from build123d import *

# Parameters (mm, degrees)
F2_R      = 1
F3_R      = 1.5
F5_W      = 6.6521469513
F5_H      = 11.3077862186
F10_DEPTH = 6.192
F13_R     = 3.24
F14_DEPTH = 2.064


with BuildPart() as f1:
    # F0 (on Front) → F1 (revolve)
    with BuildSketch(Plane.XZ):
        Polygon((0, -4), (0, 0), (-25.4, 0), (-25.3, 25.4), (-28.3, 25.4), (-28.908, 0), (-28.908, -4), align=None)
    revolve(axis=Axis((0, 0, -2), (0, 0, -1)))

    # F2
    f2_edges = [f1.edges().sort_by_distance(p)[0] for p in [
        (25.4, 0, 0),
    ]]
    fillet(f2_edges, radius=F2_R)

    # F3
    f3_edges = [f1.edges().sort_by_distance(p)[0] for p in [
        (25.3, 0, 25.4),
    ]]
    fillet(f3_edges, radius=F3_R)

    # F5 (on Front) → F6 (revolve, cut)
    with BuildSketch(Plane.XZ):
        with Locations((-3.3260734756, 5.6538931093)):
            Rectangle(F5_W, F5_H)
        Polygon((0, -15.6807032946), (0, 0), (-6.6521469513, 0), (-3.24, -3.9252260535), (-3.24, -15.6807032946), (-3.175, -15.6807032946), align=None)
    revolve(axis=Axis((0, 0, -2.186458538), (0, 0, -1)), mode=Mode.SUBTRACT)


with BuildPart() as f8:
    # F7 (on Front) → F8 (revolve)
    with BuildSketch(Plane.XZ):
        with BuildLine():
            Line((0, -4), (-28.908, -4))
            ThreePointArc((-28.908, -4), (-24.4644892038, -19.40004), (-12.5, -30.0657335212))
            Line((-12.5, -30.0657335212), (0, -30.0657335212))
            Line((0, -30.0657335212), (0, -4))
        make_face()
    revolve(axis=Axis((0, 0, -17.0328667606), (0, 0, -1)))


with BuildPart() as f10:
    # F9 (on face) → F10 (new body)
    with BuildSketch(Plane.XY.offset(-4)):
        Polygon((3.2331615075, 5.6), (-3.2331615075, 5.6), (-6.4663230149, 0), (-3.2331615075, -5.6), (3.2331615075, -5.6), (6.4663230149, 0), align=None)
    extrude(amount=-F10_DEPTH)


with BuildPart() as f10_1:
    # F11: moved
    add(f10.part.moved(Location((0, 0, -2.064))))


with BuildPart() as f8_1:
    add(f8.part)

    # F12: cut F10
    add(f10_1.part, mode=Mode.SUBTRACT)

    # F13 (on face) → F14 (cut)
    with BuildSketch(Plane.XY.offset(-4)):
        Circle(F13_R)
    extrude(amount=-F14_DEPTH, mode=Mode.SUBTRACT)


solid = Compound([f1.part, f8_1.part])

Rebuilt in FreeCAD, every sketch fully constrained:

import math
import FreeCAD as App
import Part
import Sketcher

V = App.Vector
Q = App.Units.Quantity


def edges_at(feature, points):
    """Names of the edges that pass closest to the given points."""
    edges = feature.Shape.Edges
    near = lambda p: min(range(len(edges)), key=lambda i: edges[i].distToShape(Part.Vertex(*p))[0])
    return sorted({f"Edge{near(p) + 1}" for p in points})

doc = App.newDocument("Part")
body = doc.addObject("PartDesign::Body", "Body")

# Sketch on XZ plane
sketch1 = body.newObject("Sketcher::SketchObject", "Sketch")
sketch1.AttachmentSupport = (doc.getObject("XZ_Plane"), [""])
sketch1.MapMode = "FlatFace"
sketch1.addGeometry(Part.LineSegment(V(0, -4, 0), V(0, 0, 0)), False)
sketch1.addGeometry(Part.LineSegment(V(0, 0, 0), V(-25.4, 0, 0)), False)
sketch1.addGeometry(Part.LineSegment(V(-25.4, 0, 0), V(-25.3, 25.4, 0)), False)
sketch1.addGeometry(Part.LineSegment(V(-25.3, 25.4, 0), V(-28.3, 25.4, 0)), False)
sketch1.addGeometry(Part.LineSegment(V(-28.3, 25.4, 0), V(-28.908, 0, 0)), False)
sketch1.addGeometry(Part.LineSegment(V(-28.908, 0, 0), V(-28.908, -4, 0)), False)
sketch1.addGeometry(Part.LineSegment(V(-28.908, -4, 0), V(0, -4, 0)), False)
sketch1.addConstraint(Sketcher.Constraint("Coincident", 0, 2, 1, 1))
sketch1.addConstraint(Sketcher.Constraint("Coincident", 1, 2, 2, 1))
sketch1.addConstraint(Sketcher.Constraint("Coincident", 2, 2, 3, 1))
sketch1.addConstraint(Sketcher.Constraint("Coincident", 3, 2, 4, 1))
sketch1.addConstraint(Sketcher.Constraint("Coincident", 4, 2, 5, 1))
sketch1.addConstraint(Sketcher.Constraint("Coincident", 5, 2, 6, 1))
sketch1.addConstraint(Sketcher.Constraint("Coincident", 6, 2, 0, 1))
sketch1.addConstraint(Sketcher.Constraint("Vertical", 0))
sketch1.addConstraint(Sketcher.Constraint("Horizontal", 1))
sketch1.addConstraint(Sketcher.Constraint("Horizontal", 3))
sketch1.addConstraint(Sketcher.Constraint("Vertical", 5))
sketch1.addConstraint(Sketcher.Constraint("Horizontal", 6))
sketch1.addConstraint(Sketcher.Constraint("Coincident", 0, 2, -1, 1))
sketch1.addConstraint(Sketcher.Constraint("PointOnObject", 4, 2, -1))
sketch1.addConstraint(Sketcher.Constraint("DistanceX", 3, 2, 3, 1, 3.0))
sketch1.addConstraint(Sketcher.Constraint("DistanceY", 0, 1, 0, 2, 4.0))
sketch1.addConstraint(Sketcher.Constraint("DistanceX", 1, 2, 1, 1, 25.4))
sketch1.addConstraint(Sketcher.Constraint("DistanceX", 2, 2, -1, 1, 25.3))
sketch1.addConstraint(Sketcher.Constraint("DistanceY", -1, 1, 2, 2, 25.4))
sketch1.addConstraint(Sketcher.Constraint("DistanceX", 6, 1, 6, 2, 28.908))
revolution = body.newObject("PartDesign::Revolution", "Revolution")
revolution.Profile = sketch1
revolution.ReferenceAxis = (sketch1, ["V_Axis"])
revolution.Angle = 360
doc.recompute()

fillet = body.newObject("PartDesign::Fillet", "Fillet")
fillet.Base = (revolution, edges_at(revolution, [(25.4, 0, 0)]))
fillet.Radius = 1
doc.recompute()

fillet2 = body.newObject("PartDesign::Fillet", "Fillet001")
fillet2.Base = (fillet, edges_at(fillet, [(25.3, 0, 25.4)]))
fillet2.Radius = 1.5

# Sketch on XZ plane
sketch2 = body.newObject("Sketcher::SketchObject", "Sketch001")
sketch2.AttachmentSupport = (doc.getObject("XZ_Plane"), [""])
sketch2.MapMode = "FlatFace"
sketch2.addGeometry(Part.LineSegment(V(-6.652147, 11.307786, 0), V(-6.652147, 0, 0)), False)
sketch2.addGeometry(Part.LineSegment(V(-6.652147, 0, 0), V(-3.24, -3.925226, 0)), False)
sketch2.addGeometry(Part.LineSegment(V(-3.24, -3.925226, 0), V(-3.24, -15.680703, 0)), False)
sketch2.addGeometry(Part.LineSegment(V(-3.24, -15.680703, 0), V(0, -15.680703, 0)), False)
sketch2.addGeometry(Part.LineSegment(V(0, -15.680703, 0), V(0, 0, 0)), False)
sketch2.addGeometry(Part.LineSegment(V(0, 0, 0), V(0, 11.307786, 0)), False)
sketch2.addGeometry(Part.LineSegment(V(0, 11.307786, 0), V(-6.652147, 11.307786, 0)), False)
sketch2.addConstraint(Sketcher.Constraint("Coincident", 0, 2, 1, 1))
sketch2.addConstraint(Sketcher.Constraint("Coincident", 1, 2, 2, 1))
sketch2.addConstraint(Sketcher.Constraint("Coincident", 2, 2, 3, 1))
sketch2.addConstraint(Sketcher.Constraint("Coincident", 3, 2, 4, 1))
sketch2.addConstraint(Sketcher.Constraint("Coincident", 4, 2, 5, 1))
sketch2.addConstraint(Sketcher.Constraint("Coincident", 5, 2, 6, 1))
sketch2.addConstraint(Sketcher.Constraint("Coincident", 6, 2, 0, 1))
sketch2.addConstraint(Sketcher.Constraint("Vertical", 0))
sketch2.addConstraint(Sketcher.Constraint("Vertical", 2))
sketch2.addConstraint(Sketcher.Constraint("Horizontal", 3))
sketch2.addConstraint(Sketcher.Constraint("Vertical", 4))
sketch2.addConstraint(Sketcher.Constraint("Vertical", 5))
sketch2.addConstraint(Sketcher.Constraint("Horizontal", 6))
sketch2.addConstraint(Sketcher.Constraint("Coincident", 4, 2, -1, 1))
sketch2.addConstraint(Sketcher.Constraint("PointOnObject", 0, 2, -1))
sketch2.addConstraint(Sketcher.Constraint("Angle", 1, Q("-49 deg")))
sketch2.addConstraint(Sketcher.Constraint("DistanceX", 3, 1, 3, 2, 3.24))
sketch2.addConstraint(Sketcher.Constraint("DistanceX", 6, 2, 6, 1, 6.652147))
sketch2.addConstraint(Sketcher.Constraint("DistanceY", 0, 2, 0, 1, 11.307786))
sketch2.addConstraint(Sketcher.Constraint("DistanceY", 2, 2, 2, 1, 11.755477))
groove = body.newObject("PartDesign::Groove", "Groove")
groove.Profile = sketch2
groove.ReferenceAxis = (sketch2, ["V_Axis"])
groove.Angle = 360
body2 = doc.addObject("PartDesign::Body", "Body001")

# Sketch on XZ plane
sketch3 = body2.newObject("Sketcher::SketchObject", "Sketch002")
sketch3.AttachmentSupport = (doc.getObject("XZ_Plane001"), [""])
sketch3.MapMode = "FlatFace"
sketch3.addGeometry(Part.LineSegment(V(0, -4, 0), V(-28.908, -4, 0)), False)
sketch3.addGeometry(Part.ArcOfCircle(Part.Circle(V(0, -4, 0), V(0, 0, 1), 28.908), math.radians(180), math.radians(244.379636)), False)
sketch3.addGeometry(Part.LineSegment(V(-12.5, -30.065734, 0), V(0, -30.065734, 0)), False)
sketch3.addGeometry(Part.LineSegment(V(0, -30.065734, 0), V(0, -4, 0)), False)
sketch3.addConstraint(Sketcher.Constraint("Coincident", 0, 2, 1, 1))
sketch3.addConstraint(Sketcher.Constraint("Coincident", 1, 2, 2, 1))
sketch3.addConstraint(Sketcher.Constraint("Coincident", 2, 2, 3, 1))
sketch3.addConstraint(Sketcher.Constraint("Coincident", 3, 2, 0, 1))
sketch3.addConstraint(Sketcher.Constraint("Horizontal", 0))
sketch3.addConstraint(Sketcher.Constraint("Horizontal", 2))
sketch3.addConstraint(Sketcher.Constraint("Vertical", 3))
sketch3.addConstraint(Sketcher.Constraint("Coincident", 3, 2, 1, 3))
sketch3.addConstraint(Sketcher.Constraint("PointOnObject", 1, 3, -2))
sketch3.addConstraint(Sketcher.Constraint("DistanceX", 2, 1, 2, 2, 12.5))
sketch3.addConstraint(Sketcher.Constraint("DistanceY", 1, 3, -1, 1, 4.0))
sketch3.addConstraint(Sketcher.Constraint("Radius", 1, 28.908))
revolution2 = body2.newObject("PartDesign::Revolution", "Revolution001")
revolution2.Profile = sketch3
revolution2.ReferenceAxis = (sketch3, ["V_Axis"])
revolution2.Angle = 360
body3 = doc.addObject("PartDesign::Body", "Body002")

# Sketch on XY plane
sketch4 = body3.newObject("Sketcher::SketchObject", "Sketch003")
sketch4.AttachmentSupport = (doc.getObject("XY_Plane002"), [""])
sketch4.MapMode = "FlatFace"
sketch4.AttachmentOffset = App.Placement(V(0, 0, -4), App.Rotation())
sketch4.addGeometry(Part.LineSegment(V(3.233162, 5.6, 0), V(-3.233162, 5.6, 0)), False)
sketch4.addGeometry(Part.LineSegment(V(-3.233162, 5.6, 0), V(-6.466323, 0, 0)), False)
sketch4.addGeometry(Part.LineSegment(V(-6.466323, 0, 0), V(-3.233162, -5.6, 0)), False)
sketch4.addGeometry(Part.LineSegment(V(-3.233162, -5.6, 0), V(3.233162, -5.6, 0)), False)
sketch4.addGeometry(Part.LineSegment(V(3.233162, -5.6, 0), V(6.466323, 0, 0)), False)
sketch4.addGeometry(Part.LineSegment(V(6.466323, 0, 0), V(3.233162, 5.6, 0)), False)
sketch4.addConstraint(Sketcher.Constraint("Coincident", 0, 2, 1, 1))
sketch4.addConstraint(Sketcher.Constraint("Coincident", 1, 2, 2, 1))
sketch4.addConstraint(Sketcher.Constraint("Coincident", 2, 2, 3, 1))
sketch4.addConstraint(Sketcher.Constraint("Coincident", 3, 2, 4, 1))
sketch4.addConstraint(Sketcher.Constraint("Coincident", 4, 2, 5, 1))
sketch4.addConstraint(Sketcher.Constraint("Coincident", 5, 2, 0, 1))
sketch4.addConstraint(Sketcher.Constraint("Horizontal", 0))
sketch4.addConstraint(Sketcher.Constraint("Horizontal", 3))
sketch4.addConstraint(Sketcher.Constraint("Symmetric", 0, 2, 3, 2, -1, 1))
sketch4.addConstraint(Sketcher.Constraint("Symmetric", 1, 2, 4, 2, -1, 1))
sketch4.addConstraint(Sketcher.Constraint("PointOnObject", 1, 2, -1))
sketch4.addConstraint(Sketcher.Constraint("Parallel", 2, 5))
sketch4.addConstraint(Sketcher.Constraint("Vertical", 0, 2, 2, 2))
sketch4.addConstraint(Sketcher.Constraint("Angle", 1, Q("-120 deg")))
sketch4.addConstraint(Sketcher.Constraint("DistanceY", -1, 1, 0, 2, 5.6))
sketch4.addConstraint(Sketcher.Constraint("DistanceX", 0, 2, 0, 1, 6.466323))
pad1 = body3.newObject("PartDesign::Pad", "Pad")
pad1.Profile = sketch4
pad1.Length = 6.192
pad1.Reversed = True
body4 = doc.addObject("PartDesign::Body", "Body003")
doc.recompute()

body3.Placement = App.Placement(V(0, 0, -2.064), App.Rotation(V(0, 0, 1), 0))
boolean = body4.newObject("PartDesign::Boolean", "Boolean")
boolean.Type = "Fuse"
boolean.addObjects([body3])
doc.recompute()

boolean2 = body2.newObject("PartDesign::Boolean", "Boolean001")
boolean2.Type = "Cut"
boolean2.addObjects([body4])

# Sketch on XY plane
sketch5 = body2.newObject("Sketcher::SketchObject", "Sketch004")
sketch5.AttachmentSupport = (doc.getObject("XY_Plane001"), [""])
sketch5.MapMode = "FlatFace"
sketch5.AttachmentOffset = App.Placement(V(0, 0, -4), App.Rotation())
sketch5.addGeometry(Part.Circle(V(0, 0, 0), V(0, 0, 1), 3.24), False)
sketch5.addConstraint(Sketcher.Constraint("Coincident", 0, 3, -1, 1))
sketch5.addConstraint(Sketcher.Constraint("Diameter", 0, 6.48))
pocket1 = body2.newObject("PartDesign::Pocket", "Pocket")
pocket1.Profile = sketch5
pocket1.Length = 2.064

doc.recompute()
